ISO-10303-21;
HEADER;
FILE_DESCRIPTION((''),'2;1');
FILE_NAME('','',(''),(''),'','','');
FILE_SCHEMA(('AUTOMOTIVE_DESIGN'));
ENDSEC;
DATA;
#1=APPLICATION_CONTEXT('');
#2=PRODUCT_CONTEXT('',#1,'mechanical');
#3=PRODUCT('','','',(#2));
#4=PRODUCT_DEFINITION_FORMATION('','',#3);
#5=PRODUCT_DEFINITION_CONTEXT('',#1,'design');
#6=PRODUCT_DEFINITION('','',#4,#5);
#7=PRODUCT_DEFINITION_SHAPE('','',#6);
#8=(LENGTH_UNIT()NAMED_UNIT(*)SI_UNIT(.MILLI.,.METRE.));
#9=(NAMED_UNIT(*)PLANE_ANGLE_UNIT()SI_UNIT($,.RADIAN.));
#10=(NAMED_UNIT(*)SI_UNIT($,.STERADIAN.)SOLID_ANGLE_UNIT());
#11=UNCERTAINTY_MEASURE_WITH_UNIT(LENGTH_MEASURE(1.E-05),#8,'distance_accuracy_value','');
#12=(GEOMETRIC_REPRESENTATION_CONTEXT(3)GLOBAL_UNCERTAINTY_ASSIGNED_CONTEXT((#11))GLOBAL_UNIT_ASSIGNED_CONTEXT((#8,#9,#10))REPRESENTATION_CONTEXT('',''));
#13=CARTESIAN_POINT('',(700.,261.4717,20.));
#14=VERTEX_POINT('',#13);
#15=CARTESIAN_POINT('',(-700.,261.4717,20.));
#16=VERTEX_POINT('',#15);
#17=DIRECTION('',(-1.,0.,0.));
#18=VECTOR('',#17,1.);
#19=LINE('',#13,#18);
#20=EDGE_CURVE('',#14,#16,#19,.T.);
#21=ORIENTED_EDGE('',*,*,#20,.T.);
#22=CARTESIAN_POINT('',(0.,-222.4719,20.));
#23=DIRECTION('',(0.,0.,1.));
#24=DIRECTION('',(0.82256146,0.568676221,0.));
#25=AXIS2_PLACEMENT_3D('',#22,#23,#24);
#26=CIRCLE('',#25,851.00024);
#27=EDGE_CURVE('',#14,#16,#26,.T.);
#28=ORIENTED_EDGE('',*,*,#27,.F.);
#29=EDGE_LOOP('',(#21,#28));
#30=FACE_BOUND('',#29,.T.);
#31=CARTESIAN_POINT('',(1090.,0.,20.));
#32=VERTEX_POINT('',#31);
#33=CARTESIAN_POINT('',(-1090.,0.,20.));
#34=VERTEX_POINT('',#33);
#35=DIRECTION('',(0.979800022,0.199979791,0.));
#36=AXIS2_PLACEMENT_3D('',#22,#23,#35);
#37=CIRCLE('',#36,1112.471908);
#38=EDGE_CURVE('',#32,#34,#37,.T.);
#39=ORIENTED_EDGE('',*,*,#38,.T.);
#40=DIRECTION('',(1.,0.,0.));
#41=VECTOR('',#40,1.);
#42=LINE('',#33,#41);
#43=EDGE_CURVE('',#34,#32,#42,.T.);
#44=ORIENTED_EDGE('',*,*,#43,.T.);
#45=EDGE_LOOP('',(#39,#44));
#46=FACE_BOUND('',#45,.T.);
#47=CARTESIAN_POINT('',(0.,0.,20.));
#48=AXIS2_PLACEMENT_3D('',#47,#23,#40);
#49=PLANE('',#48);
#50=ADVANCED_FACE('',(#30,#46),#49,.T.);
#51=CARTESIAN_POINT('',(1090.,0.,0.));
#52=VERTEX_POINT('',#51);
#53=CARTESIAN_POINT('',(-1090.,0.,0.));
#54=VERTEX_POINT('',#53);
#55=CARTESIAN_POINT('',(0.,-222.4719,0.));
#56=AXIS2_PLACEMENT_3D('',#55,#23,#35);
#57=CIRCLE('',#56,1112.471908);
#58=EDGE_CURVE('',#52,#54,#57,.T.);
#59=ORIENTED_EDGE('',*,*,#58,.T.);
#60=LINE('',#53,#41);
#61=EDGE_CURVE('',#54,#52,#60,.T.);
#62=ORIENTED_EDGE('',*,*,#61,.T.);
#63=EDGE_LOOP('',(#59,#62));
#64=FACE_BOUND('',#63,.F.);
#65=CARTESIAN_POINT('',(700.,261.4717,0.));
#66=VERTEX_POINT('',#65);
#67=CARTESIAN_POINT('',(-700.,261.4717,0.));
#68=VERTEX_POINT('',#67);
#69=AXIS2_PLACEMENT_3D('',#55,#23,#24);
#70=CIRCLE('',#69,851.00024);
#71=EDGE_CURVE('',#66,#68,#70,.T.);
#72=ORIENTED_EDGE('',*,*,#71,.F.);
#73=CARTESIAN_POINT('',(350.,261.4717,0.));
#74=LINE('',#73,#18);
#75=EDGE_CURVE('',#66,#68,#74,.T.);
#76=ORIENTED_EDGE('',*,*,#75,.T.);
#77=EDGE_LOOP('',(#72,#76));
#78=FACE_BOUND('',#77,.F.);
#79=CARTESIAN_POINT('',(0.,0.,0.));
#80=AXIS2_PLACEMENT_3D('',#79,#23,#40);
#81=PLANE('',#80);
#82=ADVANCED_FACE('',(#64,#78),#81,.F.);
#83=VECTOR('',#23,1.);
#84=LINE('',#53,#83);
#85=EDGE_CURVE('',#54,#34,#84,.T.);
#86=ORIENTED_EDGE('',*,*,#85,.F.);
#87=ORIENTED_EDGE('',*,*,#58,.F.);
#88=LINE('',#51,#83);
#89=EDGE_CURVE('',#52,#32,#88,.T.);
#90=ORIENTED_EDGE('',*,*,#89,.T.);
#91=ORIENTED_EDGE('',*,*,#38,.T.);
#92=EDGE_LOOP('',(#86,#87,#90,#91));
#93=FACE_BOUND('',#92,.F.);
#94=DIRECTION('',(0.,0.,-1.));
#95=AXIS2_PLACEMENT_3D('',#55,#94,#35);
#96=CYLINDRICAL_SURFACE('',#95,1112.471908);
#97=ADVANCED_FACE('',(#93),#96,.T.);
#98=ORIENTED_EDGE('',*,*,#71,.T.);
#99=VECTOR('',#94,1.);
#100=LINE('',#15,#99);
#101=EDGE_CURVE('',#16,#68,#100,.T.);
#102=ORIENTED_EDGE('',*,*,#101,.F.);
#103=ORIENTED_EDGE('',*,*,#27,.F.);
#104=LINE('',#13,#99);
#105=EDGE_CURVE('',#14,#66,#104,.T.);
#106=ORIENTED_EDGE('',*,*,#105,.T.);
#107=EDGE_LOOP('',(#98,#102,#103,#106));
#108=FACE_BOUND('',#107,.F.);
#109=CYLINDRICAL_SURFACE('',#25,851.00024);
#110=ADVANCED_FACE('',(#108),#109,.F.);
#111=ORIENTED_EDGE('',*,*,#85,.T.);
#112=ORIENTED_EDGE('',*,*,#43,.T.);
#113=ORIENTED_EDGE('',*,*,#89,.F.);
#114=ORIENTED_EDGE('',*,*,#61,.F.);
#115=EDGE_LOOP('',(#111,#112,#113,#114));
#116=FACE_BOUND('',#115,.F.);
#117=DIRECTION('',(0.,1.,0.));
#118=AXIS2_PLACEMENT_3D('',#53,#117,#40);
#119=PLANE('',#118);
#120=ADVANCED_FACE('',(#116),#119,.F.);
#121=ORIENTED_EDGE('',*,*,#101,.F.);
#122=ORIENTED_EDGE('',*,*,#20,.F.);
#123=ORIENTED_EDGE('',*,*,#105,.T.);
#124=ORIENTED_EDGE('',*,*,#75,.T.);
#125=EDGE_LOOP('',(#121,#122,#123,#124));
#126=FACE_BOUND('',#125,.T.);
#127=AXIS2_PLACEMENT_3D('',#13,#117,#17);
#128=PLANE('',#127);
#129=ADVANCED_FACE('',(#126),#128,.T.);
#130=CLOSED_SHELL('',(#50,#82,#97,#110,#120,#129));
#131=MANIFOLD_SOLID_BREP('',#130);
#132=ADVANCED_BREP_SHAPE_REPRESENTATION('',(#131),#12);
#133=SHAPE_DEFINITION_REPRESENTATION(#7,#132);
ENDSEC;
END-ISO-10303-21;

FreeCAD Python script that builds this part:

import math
import FreeCAD as App
import Part
import Sketcher

V = App.Vector

doc = App.newDocument("Part")
body = doc.addObject("PartDesign::Body", "Body")

sketch1 = body.newObject("Sketcher::SketchObject", "Sketch")
sketch1.AttachmentSupport = (doc.getObject("XY_Plane"), [""])
sketch1.MapMode = "FlatFace"
sketch1.addGeometry([
    Part.LineSegment(V(-1090, 0, 0), V(1090, 0, 0)),
    Part.ArcOfCircle(Part.Circle(V(0, -222, 0), V(0, 0, 1), 1112), math.radians(12), math.radians(168)),
], False)
sketch1.addConstraint([
    Sketcher.Constraint("Coincident", 0, 1, 1, 2),
    Sketcher.Constraint("Coincident", 1, 1, 0, 2),
    Sketcher.Constraint("Horizontal", 0),
    Sketcher.Constraint("PointOnObject", 1, 3, -2),
    Sketcher.Constraint("PointOnObject", 0, 1, -1),
    Sketcher.Constraint("DistanceX", 0, 1, 0, 2, 2180.0),
    Sketcher.Constraint("Radius", 1, 1112.472),
])
pad1 = body.newObject("PartDesign::Pad", "Pad")
pad1.Profile = sketch1
pad1.Length = 20

sketch2 = body.newObject("Sketcher::SketchObject", "Sketch001")
sketch2.AttachmentSupport = (doc.getObject("XY_Plane"), [""])
sketch2.MapMode = "FlatFace"
sketch2.AttachmentOffset = App.Placement(V(0, 0, 20), App.Rotation())
sketch2.addGeometry([
    Part.LineSegment(V(-700, 261, 0), V(700, 261, 0)),
    Part.ArcOfCircle(Part.Circle(V(0, -222, 0), V(0, 0, 1), 851), math.radians(35), math.radians(145)),
], False)
sketch2.addConstraint([
    Sketcher.Constraint("Coincident", 0, 1, 1, 2),
    Sketcher.Constraint("Coincident", 1, 1, 0, 2),
    Sketcher.Constraint("Horizontal", 0),
    Sketcher.Constraint("PointOnObject", 1, 3, -2),
    Sketcher.Constraint("DistanceX", 0, 1, 0, 2, 1400.0),
    Sketcher.Constraint("Radius", 1, 851.0002),
    Sketcher.Constraint("DistanceY", 1, 3, -1, 1, 222.472),
])
pocket1 = body.newObject("PartDesign::Pocket", "Pocket")
pocket1.Profile = sketch2
pocket1.Type = "ThroughAll"

doc.recompute()
